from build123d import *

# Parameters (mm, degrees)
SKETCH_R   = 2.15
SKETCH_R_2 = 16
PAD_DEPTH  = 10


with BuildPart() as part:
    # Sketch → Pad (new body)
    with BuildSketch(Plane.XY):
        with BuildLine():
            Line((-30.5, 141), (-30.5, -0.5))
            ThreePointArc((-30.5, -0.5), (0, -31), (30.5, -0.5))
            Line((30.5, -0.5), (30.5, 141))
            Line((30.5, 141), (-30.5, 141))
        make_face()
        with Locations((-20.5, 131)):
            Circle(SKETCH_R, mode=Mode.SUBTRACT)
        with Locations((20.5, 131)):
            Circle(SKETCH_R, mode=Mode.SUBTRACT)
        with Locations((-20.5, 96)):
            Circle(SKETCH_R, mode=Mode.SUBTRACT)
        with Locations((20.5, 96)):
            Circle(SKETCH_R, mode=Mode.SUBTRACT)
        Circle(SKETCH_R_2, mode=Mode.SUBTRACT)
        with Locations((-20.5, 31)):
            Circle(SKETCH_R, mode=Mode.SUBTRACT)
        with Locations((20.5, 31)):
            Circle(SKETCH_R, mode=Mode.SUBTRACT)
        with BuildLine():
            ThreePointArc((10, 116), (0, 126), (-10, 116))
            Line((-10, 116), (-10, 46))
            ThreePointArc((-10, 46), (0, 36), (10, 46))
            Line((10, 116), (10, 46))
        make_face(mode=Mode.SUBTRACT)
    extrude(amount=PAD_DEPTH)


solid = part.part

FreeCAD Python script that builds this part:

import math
import FreeCAD as App
import Part
import Sketcher
from FreeCAD import Vector

doc = App.newDocument("Part")
body = doc.addObject("PartDesign::Body", "Body")

sketch1 = body.newObject("Sketcher::SketchObject", "Sketch")
sketch1.AttachmentSupport = (doc.getObject("XY_Plane"), [""])
sketch1.MapMode = "FlatFace"
sketch1.addGeometry([
    Part.LineSegment(Vector(-30.5, 141, 0), Vector(-30.5, -0.5, 0)),
    Part.ArcOfCircle(Part.Circle(Vector(0, -0.5, 0), Vector(0, 0, 1), 30.5), math.radians(180), math.radians(360)),
    Part.LineSegment(Vector(30.5, -0.5, 0), Vector(30.5, 141, 0)),
    Part.LineSegment(Vector(30.5, 141, 0), Vector(-30.5, 141, 0)),
    Part.Circle(Vector(-20.5, 31, 0), Vector(0, 0, 1), 2.1),
    Part.Circle(Vector(0, 0, 0), Vector(0, 0, 1), 16),
    Part.Circle(Vector(20.5, 31, 0), Vector(0, 0, 1), 2.1),
    Part.Circle(Vector(-20.5, 96, 0), Vector(0, 0, 1), 2.1),
    Part.Circle(Vector(-20.5, 131, 0), Vector(0, 0, 1), 2.1),
    Part.ArcOfCircle(Part.Circle(Vector(0, 116, 0), Vector(0, 0, 1), 10), math.radians(0), math.radians(180)),
    Part.LineSegment(Vector(10, 116, 0), Vector(10, 46, 0)),
    Part.ArcOfCircle(Part.Circle(Vector(0, 46, 0), Vector(0, 0, 1), 10), math.radians(180), math.radians(360)),
    Part.LineSegment(Vector(-10, 46, 0), Vector(-10, 116, 0)),
    Part.Circle(Vector(20.5, 96, 0), Vector(0, 0, 1), 2.1),
    Part.Circle(Vector(20.5, 131, 0), Vector(0, 0, 1), 2.1),
], False)
sketch1.addConstraint([
    Sketcher.Constraint("Tangent", 0, 2, 1, 1),
    Sketcher.Constraint("Tangent", 1, 2, 2, 1),
    Sketcher.Constraint("Coincident", 2, 2, 3, 1),
    Sketcher.Constraint("Coincident", 3, 2, 0, 1),
    Sketcher.Constraint("Tangent", 9, 1, 10, 1),
    Sketcher.Constraint("Tangent", 10, 2, 11, 2),
    Sketcher.Constraint("Tangent", 11, 1, 12, 1),
    Sketcher.Constraint("Tangent", 12, 2, 9, 2),
    Sketcher.Constraint("Vertical", 0),
    Sketcher.Constraint("Vertical", 2),
    Sketcher.Constraint("Horizontal", 3),
    Sketcher.Constraint("Vertical", 10),
    Sketcher.Constraint("Vertical", 12),
    Sketcher.Constraint("Coincident", 5, 3, -1, 1),
    Sketcher.Constraint("Equal", 4, 6),
    Sketcher.Constraint("Equal", 6, 7),
    Sketcher.Constraint("Equal", 7, 8),
    Sketcher.Constraint("Equal", 8, 13),
    Sketcher.Constraint("Equal", 13, 14),
    Sketcher.Constraint("Symmetric", 4, 3, 6, 3, -2),
    Sketcher.Constraint("Symmetric", 7, 3, 13, 3, -2),
    Sketcher.Constraint("Symmetric", 8, 3, 14, 3, -2),
    Sketcher.Constraint("PointOnObject", 1, 3, -2),
    Sketcher.Constraint("PointOnObject", 9, 3, -2),
    Sketcher.Constraint("Vertical", 4, 3, 7, 3),
    Sketcher.Constraint("Vertical", 7, 3, 8, 3),
    Sketcher.Constraint("Diameter", 5, 32.0),
    Sketcher.Constraint("Radius", 9, 10.0),
    Sketcher.Constraint("Diameter", 4, 4.3),
    Sketcher.Constraint("Radius", 1, 30.5),
    Sketcher.Constraint("DistanceY", 10, 2, 10, 1, 70.0),
    Sketcher.Constraint("DistanceY", 0, 2, 0, 1, 141.5),
    Sketcher.Constraint("DistanceY", -1, 1, 4, 3, 31.0),
    Sketcher.Constraint("DistanceY", -1, 1, 7, 3, 96.0),
    Sketcher.Constraint("DistanceY", -1, 1, 8, 3, 131.0),
    Sketcher.Constraint("DistanceY", -1, 1, 9, 3, 116.0),
    Sketcher.Constraint("DistanceY", -1, 1, 2, 2, 141.0),
    Sketcher.Constraint("DistanceX", 4, 3, 6, 3, 41.0),
])
pad1 = body.newObject("PartDesign::Pad", "Pad")
pad1.Profile = sketch1
pad1.Length = 10

doc.recompute()
